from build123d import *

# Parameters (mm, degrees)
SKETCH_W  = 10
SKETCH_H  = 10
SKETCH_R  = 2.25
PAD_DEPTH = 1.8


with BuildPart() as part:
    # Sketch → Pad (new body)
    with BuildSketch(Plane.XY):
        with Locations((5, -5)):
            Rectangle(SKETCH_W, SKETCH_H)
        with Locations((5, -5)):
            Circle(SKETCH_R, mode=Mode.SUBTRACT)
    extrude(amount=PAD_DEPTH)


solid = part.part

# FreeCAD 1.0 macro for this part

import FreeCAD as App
import Part
import Sketcher
from FreeCAD import Vector

doc = App.newDocument("Part")
body = doc.addObject("PartDesign::Body", "Body")

# Sketch on XY plane
sketch1 = body.newObject("Sketcher::SketchObject", "Sketch")
sketch1.AttachmentSupport = (doc.getObject("XY_Plane"), [""])
sketch1.MapMode = "FlatFace"
sketch1.addGeometry(Part.LineSegment(Vector(0, 0, 0), Vector(0, -10, 0)), False)
sketch1.addGeometry(Part.LineSegment(Vector(0, -10, 0), Vector(10, -10, 0)), False)
sketch1.addGeometry(Part.LineSegment(Vector(10, -10, 0), Vector(10, 0, 0)), False)
sketch1.addGeometry(Part.LineSegment(Vector(10, 0, 0), Vector(0, 0, 0)), False)
sketch1.addGeometry(Part.Circle(Vector(5, -5, 0), Vector(0, 0, 1), 2.25), False)
sketch1.addConstraint(Sketcher.Constraint("Coincident", 0, 2, 1, 1))
sketch1.addConstraint(Sketcher.Constraint("Coincident", 1, 2, 2, 1))
sketch1.addConstraint(Sketcher.Constraint("Coincident", 2, 2, 3, 1))
sketch1.addConstraint(Sketcher.Constraint("Coincident", 3, 2, 0, 1))
sketch1.addConstraint(Sketcher.Constraint("Vertical", 0))
sketch1.addConstraint(Sketcher.Constraint("Horizontal", 1))
sketch1.addConstraint(Sketcher.Constraint("Vertical", 2))
sketch1.addConstraint(Sketcher.Constraint("Horizontal", 3))
sketch1.addConstraint(Sketcher.Constraint("Coincident", 3, 2, -1, 1))
sketch1.addConstraint(Sketcher.Constraint("Equal", 3, 0))
sketch1.addConstraint(Sketcher.Constraint("Diameter", 4, 4.5))
sketch1.addConstraint(Sketcher.Constraint("DistanceX", 1, 1, 1, 2, 10.0))
sketch1.addConstraint(Sketcher.Constraint("DistanceX", -1, 1, 4, 3, 5.0))
sketch1.addConstraint(Sketcher.Constraint("DistanceY", 4, 3, -1, 1, 5.0))
pad1 = body.newObject("PartDesign::Pad", "Pad")
pad1.Profile = sketch1
pad1.Length = 1.8

doc.recompute()
